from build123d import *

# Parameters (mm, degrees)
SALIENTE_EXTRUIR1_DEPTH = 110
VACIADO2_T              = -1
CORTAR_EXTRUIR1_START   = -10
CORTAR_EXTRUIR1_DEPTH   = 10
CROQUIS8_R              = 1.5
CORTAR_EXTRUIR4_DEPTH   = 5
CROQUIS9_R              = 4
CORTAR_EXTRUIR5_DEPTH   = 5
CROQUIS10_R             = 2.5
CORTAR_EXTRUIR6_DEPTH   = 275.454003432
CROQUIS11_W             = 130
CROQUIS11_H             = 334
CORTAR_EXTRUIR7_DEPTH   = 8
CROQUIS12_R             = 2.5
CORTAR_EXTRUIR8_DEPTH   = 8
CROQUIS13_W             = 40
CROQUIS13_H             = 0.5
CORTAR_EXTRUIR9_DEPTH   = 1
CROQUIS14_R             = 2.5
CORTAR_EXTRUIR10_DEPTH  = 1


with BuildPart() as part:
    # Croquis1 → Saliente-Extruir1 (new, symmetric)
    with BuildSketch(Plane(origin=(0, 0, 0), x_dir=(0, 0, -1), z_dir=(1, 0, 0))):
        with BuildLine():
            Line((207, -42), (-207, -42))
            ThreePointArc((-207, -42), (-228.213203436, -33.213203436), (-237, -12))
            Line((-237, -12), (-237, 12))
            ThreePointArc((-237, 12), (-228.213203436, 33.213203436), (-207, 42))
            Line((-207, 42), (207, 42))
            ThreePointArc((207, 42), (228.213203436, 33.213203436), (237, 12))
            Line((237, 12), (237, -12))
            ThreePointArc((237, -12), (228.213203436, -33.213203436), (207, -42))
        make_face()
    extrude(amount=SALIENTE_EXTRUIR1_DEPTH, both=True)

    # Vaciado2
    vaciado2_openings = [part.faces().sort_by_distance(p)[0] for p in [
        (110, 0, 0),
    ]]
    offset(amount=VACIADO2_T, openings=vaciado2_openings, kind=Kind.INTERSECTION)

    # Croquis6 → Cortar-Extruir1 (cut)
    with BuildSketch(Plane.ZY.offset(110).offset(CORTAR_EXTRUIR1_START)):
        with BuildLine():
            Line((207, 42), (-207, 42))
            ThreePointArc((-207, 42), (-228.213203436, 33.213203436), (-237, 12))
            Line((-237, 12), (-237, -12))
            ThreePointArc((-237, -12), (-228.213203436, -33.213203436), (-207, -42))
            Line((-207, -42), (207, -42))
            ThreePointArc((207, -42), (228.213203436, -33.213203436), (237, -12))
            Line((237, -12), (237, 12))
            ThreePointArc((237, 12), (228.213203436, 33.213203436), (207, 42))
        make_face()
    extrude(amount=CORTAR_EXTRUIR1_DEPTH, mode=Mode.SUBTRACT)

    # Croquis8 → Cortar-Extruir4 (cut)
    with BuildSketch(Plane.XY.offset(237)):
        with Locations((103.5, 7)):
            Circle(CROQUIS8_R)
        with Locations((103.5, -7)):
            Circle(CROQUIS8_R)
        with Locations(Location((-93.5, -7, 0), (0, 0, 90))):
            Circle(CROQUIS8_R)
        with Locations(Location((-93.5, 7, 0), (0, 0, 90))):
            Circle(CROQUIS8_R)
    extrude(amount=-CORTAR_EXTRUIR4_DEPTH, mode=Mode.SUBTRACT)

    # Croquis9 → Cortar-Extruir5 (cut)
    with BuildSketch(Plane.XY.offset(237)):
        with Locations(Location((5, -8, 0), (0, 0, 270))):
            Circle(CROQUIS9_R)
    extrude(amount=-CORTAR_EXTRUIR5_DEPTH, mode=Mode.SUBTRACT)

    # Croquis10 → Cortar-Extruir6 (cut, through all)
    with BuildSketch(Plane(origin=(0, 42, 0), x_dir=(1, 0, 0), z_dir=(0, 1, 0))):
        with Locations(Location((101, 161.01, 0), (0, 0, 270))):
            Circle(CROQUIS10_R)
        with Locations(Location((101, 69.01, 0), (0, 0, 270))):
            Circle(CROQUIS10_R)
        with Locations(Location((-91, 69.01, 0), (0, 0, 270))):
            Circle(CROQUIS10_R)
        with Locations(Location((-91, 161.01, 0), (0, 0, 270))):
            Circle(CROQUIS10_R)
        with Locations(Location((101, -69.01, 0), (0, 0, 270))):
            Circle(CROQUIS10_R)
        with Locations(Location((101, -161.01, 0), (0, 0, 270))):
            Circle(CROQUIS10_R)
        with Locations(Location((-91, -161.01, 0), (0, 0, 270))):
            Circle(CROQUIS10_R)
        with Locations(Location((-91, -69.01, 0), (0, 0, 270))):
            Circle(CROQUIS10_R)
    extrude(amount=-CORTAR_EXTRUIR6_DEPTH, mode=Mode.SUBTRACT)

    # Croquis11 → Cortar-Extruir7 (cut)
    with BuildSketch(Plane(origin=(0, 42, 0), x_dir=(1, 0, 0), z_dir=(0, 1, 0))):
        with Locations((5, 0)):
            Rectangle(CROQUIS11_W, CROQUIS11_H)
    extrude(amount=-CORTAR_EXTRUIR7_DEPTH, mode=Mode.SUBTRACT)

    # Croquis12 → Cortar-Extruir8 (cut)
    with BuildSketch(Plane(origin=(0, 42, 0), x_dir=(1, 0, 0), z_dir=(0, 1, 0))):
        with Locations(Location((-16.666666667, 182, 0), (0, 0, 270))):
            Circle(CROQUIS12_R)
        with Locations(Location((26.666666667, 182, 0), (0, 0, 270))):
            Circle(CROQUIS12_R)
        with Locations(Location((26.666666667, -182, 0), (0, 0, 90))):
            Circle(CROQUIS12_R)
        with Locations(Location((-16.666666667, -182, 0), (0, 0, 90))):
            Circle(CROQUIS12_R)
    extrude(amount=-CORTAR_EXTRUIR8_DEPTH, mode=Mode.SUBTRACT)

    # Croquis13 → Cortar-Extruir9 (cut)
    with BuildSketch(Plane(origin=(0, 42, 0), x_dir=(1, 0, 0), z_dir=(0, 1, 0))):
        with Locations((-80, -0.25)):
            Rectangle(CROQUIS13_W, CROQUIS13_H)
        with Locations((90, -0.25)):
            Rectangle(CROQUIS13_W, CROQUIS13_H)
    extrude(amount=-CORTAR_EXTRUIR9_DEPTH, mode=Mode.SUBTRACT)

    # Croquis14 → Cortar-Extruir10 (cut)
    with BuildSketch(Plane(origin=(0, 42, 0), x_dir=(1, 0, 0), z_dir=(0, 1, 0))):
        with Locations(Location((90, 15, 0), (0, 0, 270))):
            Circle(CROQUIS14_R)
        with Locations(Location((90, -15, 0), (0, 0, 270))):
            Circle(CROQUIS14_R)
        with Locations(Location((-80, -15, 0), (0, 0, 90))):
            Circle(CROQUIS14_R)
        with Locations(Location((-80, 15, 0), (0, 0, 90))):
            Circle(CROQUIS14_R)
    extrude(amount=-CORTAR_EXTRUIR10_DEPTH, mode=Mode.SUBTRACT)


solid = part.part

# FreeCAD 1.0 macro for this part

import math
import FreeCAD as App
import Part
import Sketcher


def faces_at(feature, points):
    """Names of the faces that lie closest to the given points."""
    faces = feature.Shape.Faces
    near = lambda p: min(range(len(faces)), key=lambda i: faces[i].distToShape(Part.Vertex(*p))[0])
    return sorted({f"Face{near(p) + 1}" for p in points})

doc = App.newDocument("Part")
body = doc.addObject("PartDesign::Body", "Body")

# Sketch on YZ plane
sketch1 = doc.addObject("Sketcher::SketchObject", "Sketch")
body.addObject(sketch1)
sketch1.AttachmentSupport = (doc.YZ_Plane, [""])
sketch1.MapMode = "FlatFace"
sketch1.addGeometry(Part.LineSegment(App.Vector(-42, 207, 0), App.Vector(-42, -207, 0)), False)
sketch1.addGeometry(Part.ArcOfCircle(Part.Circle(App.Vector(-12, -207, 0), App.Vector(0, 0, 1), 30), math.radians(180), math.radians(270)), False)
sketch1.addGeometry(Part.LineSegment(App.Vector(-12, -237, 0), App.Vector(12, -237, 0)), False)
sketch1.addGeometry(Part.ArcOfCircle(Part.Circle(App.Vector(12, -207, 0), App.Vector(0, 0, 1), 30), math.radians(-90), math.radians(0)), False)
sketch1.addGeometry(Part.LineSegment(App.Vector(42, -207, 0), App.Vector(42, 207, 0)), False)
sketch1.addGeometry(Part.ArcOfCircle(Part.Circle(App.Vector(12, 207, 0), App.Vector(0, 0, 1), 30), math.radians(0), math.radians(90)), False)
sketch1.addGeometry(Part.LineSegment(App.Vector(12, 237, 0), App.Vector(-12, 237, 0)), False)
sketch1.addGeometry(Part.ArcOfCircle(Part.Circle(App.Vector(-12, 207, 0), App.Vector(0, 0, 1), 30), math.radians(90), math.radians(180)), False)
sketch1.addConstraint(Sketcher.Constraint("Tangent", 0, 2, 1, 1))
sketch1.addConstraint(Sketcher.Constraint("Tangent", 1, 2, 2, 1))
sketch1.addConstraint(Sketcher.Constraint("Tangent", 2, 2, 3, 1))
sketch1.addConstraint(Sketcher.Constraint("Tangent", 3, 2, 4, 1))
sketch1.addConstraint(Sketcher.Constraint("Tangent", 4, 2, 5, 1))
sketch1.addConstraint(Sketcher.Constraint("Tangent", 5, 2, 6, 1))
sketch1.addConstraint(Sketcher.Constraint("Tangent", 6, 2, 7, 1))
sketch1.addConstraint(Sketcher.Constraint("Tangent", 7, 2, 0, 1))
sketch1.addConstraint(Sketcher.Constraint("Vertical", 0))
sketch1.addConstraint(Sketcher.Constraint("Horizontal", 2))
sketch1.addConstraint(Sketcher.Constraint("Vertical", 4))
sketch1.addConstraint(Sketcher.Constraint("Horizontal", 6))
sketch1.addConstraint(Sketcher.Constraint("Equal", 1, 3))
sketch1.addConstraint(Sketcher.Constraint("Equal", 3, 5))
sketch1.addConstraint(Sketcher.Constraint("Equal", 5, 7))
sketch1.addConstraint(Sketcher.Constraint("Symmetric", 1, 3, 5, 3, -1, 1))
sketch1.addConstraint(Sketcher.Constraint("Radius", 1, 30.0))
sketch1.addConstraint(Sketcher.Constraint("DistanceX", 2, 1, 2, 2, 24.0))
sketch1.addConstraint(Sketcher.Constraint("DistanceY", 0, 2, 0, 1, 414.0))
pad1 = doc.addObject("PartDesign::Pad", "Pad")
body.addObject(pad1)
pad1.Profile = sketch1
pad1.Length = 220
pad1.Midplane = True
doc.recompute()

thickness = doc.addObject("PartDesign::Thickness", "Thickness")
body.addObject(thickness)
thickness.Base = (pad1, faces_at(pad1, [(110, 0, 0)]))
thickness.Value = 1
thickness.Reversed = True
thickness.Join = "Intersection"

# Sketch on YZ plane
sketch2 = doc.addObject("Sketcher::SketchObject", "Sketch001")
body.addObject(sketch2)
sketch2.AttachmentSupport = (doc.YZ_Plane, [""])
sketch2.MapMode = "FlatFace"
sketch2.AttachmentOffset = App.Placement(App.Vector(0, 0, -100), App.Rotation())
sketch2.addGeometry(Part.LineSegment(App.Vector(42, 207, 0), App.Vector(42, -207, 0)), False)
sketch2.addGeometry(Part.ArcOfCircle(Part.Circle(App.Vector(12, -207, 0), App.Vector(0, 0, 1), 30), math.radians(-90), math.radians(0)), False)
sketch2.addGeometry(Part.LineSegment(App.Vector(12, -237, 0), App.Vector(-12, -237, 0)), False)
sketch2.addGeometry(Part.ArcOfCircle(Part.Circle(App.Vector(-12, -207, 0), App.Vector(0, 0, 1), 30), math.radians(180), math.radians(270)), False)
sketch2.addGeometry(Part.LineSegment(App.Vector(-42, -207, 0), App.Vector(-42, 207, 0)), False)
sketch2.addGeometry(Part.ArcOfCircle(Part.Circle(App.Vector(-12, 207, 0), App.Vector(0, 0, 1), 30), math.radians(90), math.radians(180)), False)
sketch2.addGeometry(Part.LineSegment(App.Vector(-12, 237, 0), App.Vector(12, 237, 0)), False)
sketch2.addGeometry(Part.ArcOfCircle(Part.Circle(App.Vector(12, 207, 0), App.Vector(0, 0, 1), 30), math.radians(0), math.radians(90)), False)
sketch2.addConstraint(Sketcher.Constraint("Tangent", 0, 2, 1, 2))
sketch2.addConstraint(Sketcher.Constraint("Tangent", 1, 1, 2, 1))
sketch2.addConstraint(Sketcher.Constraint("Tangent", 2, 2, 3, 2))
sketch2.addConstraint(Sketcher.Constraint("Tangent", 3, 1, 4, 1))
sketch2.addConstraint(Sketcher.Constraint("Tangent", 4, 2, 5, 2))
sketch2.addConstraint(Sketcher.Constraint("Tangent", 5, 1, 6, 1))
sketch2.addConstraint(Sketcher.Constraint("Tangent", 6, 2, 7, 2))
sketch2.addConstraint(Sketcher.Constraint("Tangent", 7, 1, 0, 1))
sketch2.addConstraint(Sketcher.Constraint("Vertical", 0))
sketch2.addConstraint(Sketcher.Constraint("Horizontal", 2))
sketch2.addConstraint(Sketcher.Constraint("Vertical", 4))
sketch2.addConstraint(Sketcher.Constraint("Horizontal", 6))
sketch2.addConstraint(Sketcher.Constraint("Equal", 1, 3))
sketch2.addConstraint(Sketcher.Constraint("Equal", 3, 5))
sketch2.addConstraint(Sketcher.Constraint("Equal", 5, 7))
sketch2.addConstraint(Sketcher.Constraint("Symmetric", 1, 3, 5, 3, -1, 1))
sketch2.addConstraint(Sketcher.Constraint("Radius", 1, 30.0))
sketch2.addConstraint(Sketcher.Constraint("DistanceX", 2, 2, 2, 1, 24.0))
sketch2.addConstraint(Sketcher.Constraint("DistanceY", 0, 2, 0, 1, 414.0))
pocket1 = doc.addObject("PartDesign::Pocket", "Pocket")
body.addObject(pocket1)
pocket1.Profile = sketch2
pocket1.Length = 10

# Sketch on XY plane
sketch3 = doc.addObject("Sketcher::SketchObject", "Sketch002")
body.addObject(sketch3)
sketch3.AttachmentSupport = (doc.XY_Plane, [""])
sketch3.MapMode = "FlatFace"
sketch3.AttachmentOffset = App.Placement(App.Vector(0, 0, 237), App.Rotation())
sketch3.addGeometry(Part.Circle(App.Vector(103.5, 7, 0), App.Vector(0, 0, 1), 1.5), False)
sketch3.addGeometry(Part.Circle(App.Vector(103.5, -7, 0), App.Vector(0, 0, 1), 1.5), False)
sketch3.addGeometry(Part.Circle(App.Vector(-93.5, -7, 0), App.Vector(0, 0, 1), 1.5), False)
sketch3.addGeometry(Part.Circle(App.Vector(-93.5, 7, 0), App.Vector(0, 0, 1), 1.5), False)
sketch3.addConstraint(Sketcher.Constraint("Equal", 0, 1))
sketch3.addConstraint(Sketcher.Constraint("Equal", 1, 2))
sketch3.addConstraint(Sketcher.Constraint("Equal", 2, 3))
sketch3.addConstraint(Sketcher.Constraint("Symmetric", 0, 3, 1, 3, -1))
sketch3.addConstraint(Sketcher.Constraint("Symmetric", 2, 3, 3, 3, -1))
sketch3.addConstraint(Sketcher.Constraint("Horizontal", 1, 3, 2, 3))
sketch3.addConstraint(Sketcher.Constraint("Diameter", 0, 3.0))
sketch3.addConstraint(Sketcher.Constraint("DistanceY", -1, 1, 0, 3, 7.0))
sketch3.addConstraint(Sketcher.Constraint("DistanceX", 2, 3, 1, 3, 197.0))
sketch3.addConstraint(Sketcher.Constraint("DistanceX", -1, 1, 0, 3, 103.5))
pocket2 = doc.addObject("PartDesign::Pocket", "Pocket001")
body.addObject(pocket2)
pocket2.Profile = sketch3
pocket2.Length = 5

# Sketch on XY plane
sketch4 = doc.addObject("Sketcher::SketchObject", "Sketch003")
body.addObject(sketch4)
sketch4.AttachmentSupport = (doc.XY_Plane, [""])
sketch4.MapMode = "FlatFace"
sketch4.AttachmentOffset = App.Placement(App.Vector(0, 0, 237), App.Rotation())
sketch4.addGeometry(Part.Circle(App.Vector(5, -8, 0), App.Vector(0, 0, 1), 4), False)
sketch4.addConstraint(Sketcher.Constraint("Diameter", 0, 8.0))
sketch4.addConstraint(Sketcher.Constraint("DistanceX", -1, 1, 0, 3, 5.0))
sketch4.addConstraint(Sketcher.Constraint("DistanceY", 0, 3, -1, 1, 8.0))
pocket3 = doc.addObject("PartDesign::Pocket", "Pocket002")
body.addObject(pocket3)
pocket3.Profile = sketch4
pocket3.Length = 5

# Sketch on XZ plane
sketch5 = doc.addObject("Sketcher::SketchObject", "Sketch004")
body.addObject(sketch5)
sketch5.AttachmentSupport = (doc.XZ_Plane, [""])
sketch5.MapMode = "FlatFace"
sketch5.AttachmentOffset = App.Placement(App.Vector(0, 0, -42), App.Rotation())
sketch5.addGeometry(Part.Circle(App.Vector(101, -161.01, 0), App.Vector(0, 0, 1), 2.5), False)
sketch5.addGeometry(Part.Circle(App.Vector(101, -69.01, 0), App.Vector(0, 0, 1), 2.5), False)
sketch5.addGeometry(Part.Circle(App.Vector(-91, -69.01, 0), App.Vector(0, 0, 1), 2.5), False)
sketch5.addGeometry(Part.Circle(App.Vector(-91, -161.01, 0), App.Vector(0, 0, 1), 2.5), False)
sketch5.addGeometry(Part.Circle(App.Vector(101, 69.01, 0), App.Vector(0, 0, 1), 2.5), False)
sketch5.addGeometry(Part.Circle(App.Vector(101, 161.01, 0), App.Vector(0, 0, 1), 2.5), False)
sketch5.addGeometry(Part.Circle(App.Vector(-91, 161.01, 0), App.Vector(0, 0, 1), 2.5), False)
sketch5.addGeometry(Part.Circle(App.Vector(-91, 69.01, 0), App.Vector(0, 0, 1), 2.5), False)
sketch5.addConstraint(Sketcher.Constraint("Equal", 0, 1))
sketch5.addConstraint(Sketcher.Constraint("Equal", 1, 2))
sketch5.addConstraint(Sketcher.Constraint("Equal", 2, 3))
sketch5.addConstraint(Sketcher.Constraint("Equal", 3, 4))
sketch5.addConstraint(Sketcher.Constraint("Equal", 4, 5))
sketch5.addConstraint(Sketcher.Constraint("Equal", 5, 6))
sketch5.addConstraint(Sketcher.Constraint("Equal", 6, 7))
sketch5.addConstraint(Sketcher.Constraint("Symmetric", 1, 3, 4, 3, -1))
sketch5.addConstraint(Sketcher.Constraint("Symmetric", 0, 3, 5, 3, -1))
sketch5.addConstraint(Sketcher.Constraint("Symmetric", 3, 3, 6, 3, -1))
sketch5.addConstraint(Sketcher.Constraint("Symmetric", 2, 3, 7, 3, -1))
sketch5.addConstraint(Sketcher.Constraint("Horizontal", 1, 3, 2, 3))
sketch5.addConstraint(Sketcher.Constraint("Horizontal", 0, 3, 3, 3))
sketch5.addConstraint(Sketcher.Constraint("Vertical", 0, 3, 1, 3))
sketch5.addConstraint(Sketcher.Constraint("Vertical", 2, 3, 3, 3))
sketch5.addConstraint(Sketcher.Constraint("Diameter", 0, 5.0))
sketch5.addConstraint(Sketcher.Constraint("DistanceX", -1, 1, 0, 3, 101.0))
sketch5.addConstraint(Sketcher.Constraint("DistanceX", 2, 3, -1, 1, 91.0))
sketch5.addConstraint(Sketcher.Constraint("DistanceY", 0, 3, 1, 3, 92.0))
sketch5.addConstraint(Sketcher.Constraint("DistanceY", 0, 3, -1, 1, 161.01))
pocket4 = doc.addObject("PartDesign::Pocket", "Pocket003")
body.addObject(pocket4)
pocket4.Profile = sketch5
pocket4.Type = "ThroughAll"
pocket4.Reversed = True

# Sketch on XZ plane
sketch6 = doc.addObject("Sketcher::SketchObject", "Sketch005")
body.addObject(sketch6)
sketch6.AttachmentSupport = (doc.XZ_Plane, [""])
sketch6.MapMode = "FlatFace"
sketch6.AttachmentOffset = App.Placement(App.Vector(0, 0, -42), App.Rotation())
sketch6.addGeometry(Part.LineSegment(App.Vector(-60, -167, 0), App.Vector(-60, 167, 0)), False)
sketch6.addGeometry(Part.LineSegment(App.Vector(-60, 167, 0), App.Vector(70, 167, 0)), False)
sketch6.addGeometry(Part.LineSegment(App.Vector(70, 167, 0), App.Vector(70, -167, 0)), False)
sketch6.addGeometry(Part.LineSegment(App.Vector(70, -167, 0), App.Vector(-60, -167, 0)), False)
sketch6.addConstraint(Sketcher.Constraint("Coincident", 0, 2, 1, 1))
sketch6.addConstraint(Sketcher.Constraint("Coincident", 1, 2, 2, 1))
sketch6.addConstraint(Sketcher.Constraint("Coincident", 2, 2, 3, 1))
sketch6.addConstraint(Sketcher.Constraint("Coincident", 3, 2, 0, 1))
sketch6.addConstraint(Sketcher.Constraint("Vertical", 0))
sketch6.addConstraint(Sketcher.Constraint("Horizontal", 1))
sketch6.addConstraint(Sketcher.Constraint("Vertical", 2))
sketch6.addConstraint(Sketcher.Constraint("Horizontal", 3))
sketch6.addConstraint(Sketcher.Constraint("DistanceX", 1, 1, 1, 2, 130.0))
sketch6.addConstraint(Sketcher.Constraint("DistanceY", 0, 1, 0, 2, 334.0))
sketch6.addConstraint(Sketcher.Constraint("DistanceX", 0, 2, -1, 1, 60.0))
sketch6.addConstraint(Sketcher.Constraint("DistanceY", -1, 1, 0, 2, 167.0))
pocket5 = doc.addObject("PartDesign::Pocket", "Pocket004")
body.addObject(pocket5)
pocket5.Profile = sketch6
pocket5.Length = 8
pocket5.Reversed = True

# Sketch on XZ plane
sketch7 = doc.addObject("Sketcher::SketchObject", "Sketch006")
body.addObject(sketch7)
sketch7.AttachmentSupport = (doc.XZ_Plane, [""])
sketch7.MapMode = "FlatFace"
sketch7.AttachmentOffset = App.Placement(App.Vector(0, 0, -42), App.Rotation())
sketch7.addGeometry(Part.Circle(App.Vector(-16.666667, -182, 0), App.Vector(0, 0, 1), 2.5), False)
sketch7.addGeometry(Part.Circle(App.Vector(26.666667, -182, 0), App.Vector(0, 0, 1), 2.5), False)
sketch7.addGeometry(Part.Circle(App.Vector(26.666667, 182, 0), App.Vector(0, 0, 1), 2.5), False)
sketch7.addGeometry(Part.Circle(App.Vector(-16.666667, 182, 0), App.Vector(0, 0, 1), 2.5), False)
sketch7.addConstraint(Sketcher.Constraint("Equal", 0, 1))
sketch7.addConstraint(Sketcher.Constraint("Equal", 1, 2))
sketch7.addConstraint(Sketcher.Constraint("Equal", 2, 3))
sketch7.addConstraint(Sketcher.Constraint("Symmetric", 1, 3, 2, 3, -1))
sketch7.addConstraint(Sketcher.Constraint("Symmetric", 0, 3, 3, 3, -1))
sketch7.addConstraint(Sketcher.Constraint("Horizontal", 0, 3, 1, 3))
sketch7.addConstraint(Sketcher.Constraint("Diameter", 0, 5.0))
sketch7.addConstraint(Sketcher.Constraint("DistanceY", 0, 3, -1, 1, 182.0))
sketch7.addConstraint(Sketcher.Constraint("DistanceX", 0, 3, -1, 1, 16.666667))
sketch7.addConstraint(Sketcher.Constraint("DistanceX", -1, 1, 1, 3, 26.666667))
pocket6 = doc.addObject("PartDesign::Pocket", "Pocket005")
body.addObject(pocket6)
pocket6.Profile = sketch7
pocket6.Length = 8
pocket6.Reversed = True

# Sketch on XZ plane
sketch8 = doc.addObject("Sketcher::SketchObject", "Sketch007")
body.addObject(sketch8)
sketch8.AttachmentSupport = (doc.XZ_Plane, [""])
sketch8.MapMode = "FlatFace"
sketch8.AttachmentOffset = App.Placement(App.Vector(0, 0, -42), App.Rotation())
sketch8.addGeometry(Part.LineSegment(App.Vector(-100, 0, 0), App.Vector(-100, 0.5, 0)), False)
sketch8.addGeometry(Part.LineSegment(App.Vector(-100, 0.5, 0), App.Vector(-60, 0.5, 0)), False)
sketch8.addGeometry(Part.LineSegment(App.Vector(-60, 0.5, 0), App.Vector(-60, 0, 0)), False)
sketch8.addGeometry(Part.LineSegment(App.Vector(-60, 0, 0), App.Vector(-100, 0, 0)), False)
sketch8.addGeometry(Part.LineSegment(App.Vector(70, 0, 0), App.Vector(70, 0.5, 0)), False)
sketch8.addGeometry(Part.LineSegment(App.Vector(70, 0.5, 0), App.Vector(110, 0.5, 0)), False)
sketch8.addGeometry(Part.LineSegment(App.Vector(110, 0.5, 0), App.Vector(110, 0, 0)), False)
sketch8.addGeometry(Part.LineSegment(App.Vector(110, 0, 0), App.Vector(70, 0, 0)), False)
sketch8.addConstraint(Sketcher.Constraint("Coincident", 0, 2, 1, 1))
sketch8.addConstraint(Sketcher.Constraint("Coincident", 1, 2, 2, 1))
sketch8.addConstraint(Sketcher.Constraint("Coincident", 2, 2, 3, 1))
sketch8.addConstraint(Sketcher.Constraint("Coincident", 3, 2, 0, 1))
sketch8.addConstraint(Sketcher.Constraint("Coincident", 4, 2, 5, 1))
sketch8.addConstraint(Sketcher.Constraint("Coincident", 5, 2, 6, 1))
sketch8.addConstraint(Sketcher.Constraint("Coincident", 6, 2, 7, 1))
sketch8.addConstraint(Sketcher.Constraint("Coincident", 7, 2, 4, 1))
sketch8.addConstraint(Sketcher.Constraint("Vertical", 0))
sketch8.addConstraint(Sketcher.Constraint("Horizontal", 1))
sketch8.addConstraint(Sketcher.Constraint("Vertical", 2))
sketch8.addConstraint(Sketcher.Constraint("Horizontal", 3))
sketch8.addConstraint(Sketcher.Constraint("Vertical", 4))
sketch8.addConstraint(Sketcher.Constraint("Horizontal", 5))
sketch8.addConstraint(Sketcher.Constraint("Vertical", 6))
sketch8.addConstraint(Sketcher.Constraint("Horizontal", 7))
sketch8.addConstraint(Sketcher.Constraint("PointOnObject", 2, 2, -1))
sketch8.addConstraint(Sketcher.Constraint("PointOnObject", 6, 2, -1))
sketch8.addConstraint(Sketcher.Constraint("Horizontal", 1, 2, 4, 2))
sketch8.addConstraint(Sketcher.Constraint("Equal", 3, 5))
sketch8.addConstraint(Sketcher.Constraint("DistanceX", 1, 1, 1, 2, 40.0))
sketch8.addConstraint(Sketcher.Constraint("DistanceY", 0, 1, 0, 2, 0.5))
sketch8.addConstraint(Sketcher.Constraint("DistanceX", 0, 2, -1, 1, 100.0))
sketch8.addConstraint(Sketcher.Constraint("DistanceX", -1, 1, 4, 2, 70.0))
pocket7 = doc.addObject("PartDesign::Pocket", "Pocket006")
body.addObject(pocket7)
pocket7.Profile = sketch8
pocket7.Length = 1
pocket7.Reversed = True

# Sketch on XZ plane
sketch9 = doc.addObject("Sketcher::SketchObject", "Sketch008")
body.addObject(sketch9)
sketch9.AttachmentSupport = (doc.XZ_Plane, [""])
sketch9.MapMode = "FlatFace"
sketch9.AttachmentOffset = App.Placement(App.Vector(0, 0, -42), App.Rotation())
sketch9.addGeometry(Part.Circle(App.Vector(90, -15, 0), App.Vector(0, 0, 1), 2.5), False)
sketch9.addGeometry(Part.Circle(App.Vector(90, 15, 0), App.Vector(0, 0, 1), 2.5), False)
sketch9.addGeometry(Part.Circle(App.Vector(-80, 15, 0), App.Vector(0, 0, 1), 2.5), False)
sketch9.addGeometry(Part.Circle(App.Vector(-80, -15, 0), App.Vector(0, 0, 1), 2.5), False)
sketch9.addConstraint(Sketcher.Constraint("Equal", 0, 1))
sketch9.addConstraint(Sketcher.Constraint("Equal", 1, 2))
sketch9.addConstraint(Sketcher.Constraint("Equal", 2, 3))
sketch9.addConstraint(Sketcher.Constraint("Symmetric", 0, 3, 1, 3, -1))
sketch9.addConstraint(Sketcher.Constraint("Symmetric", 2, 3, 3, 3, -1))
sketch9.addConstraint(Sketcher.Constraint("Horizontal", 1, 3, 2, 3))
sketch9.addConstraint(Sketcher.Constraint("Diameter", 0, 5.0))
sketch9.addConstraint(Sketcher.Constraint("DistanceX", -1, 1, 0, 3, 90.0))
sketch9.addConstraint(Sketcher.Constraint("DistanceY", 0, 3, -1, 1, 15.0))
sketch9.addConstraint(Sketcher.Constraint("DistanceX", 2, 3, -1, 1, 80.0))
pocket8 = doc.addObject("PartDesign::Pocket", "Pocket007")
body.addObject(pocket8)
pocket8.Profile = sketch9
pocket8.Length = 1
pocket8.Reversed = True

doc.recompute()
